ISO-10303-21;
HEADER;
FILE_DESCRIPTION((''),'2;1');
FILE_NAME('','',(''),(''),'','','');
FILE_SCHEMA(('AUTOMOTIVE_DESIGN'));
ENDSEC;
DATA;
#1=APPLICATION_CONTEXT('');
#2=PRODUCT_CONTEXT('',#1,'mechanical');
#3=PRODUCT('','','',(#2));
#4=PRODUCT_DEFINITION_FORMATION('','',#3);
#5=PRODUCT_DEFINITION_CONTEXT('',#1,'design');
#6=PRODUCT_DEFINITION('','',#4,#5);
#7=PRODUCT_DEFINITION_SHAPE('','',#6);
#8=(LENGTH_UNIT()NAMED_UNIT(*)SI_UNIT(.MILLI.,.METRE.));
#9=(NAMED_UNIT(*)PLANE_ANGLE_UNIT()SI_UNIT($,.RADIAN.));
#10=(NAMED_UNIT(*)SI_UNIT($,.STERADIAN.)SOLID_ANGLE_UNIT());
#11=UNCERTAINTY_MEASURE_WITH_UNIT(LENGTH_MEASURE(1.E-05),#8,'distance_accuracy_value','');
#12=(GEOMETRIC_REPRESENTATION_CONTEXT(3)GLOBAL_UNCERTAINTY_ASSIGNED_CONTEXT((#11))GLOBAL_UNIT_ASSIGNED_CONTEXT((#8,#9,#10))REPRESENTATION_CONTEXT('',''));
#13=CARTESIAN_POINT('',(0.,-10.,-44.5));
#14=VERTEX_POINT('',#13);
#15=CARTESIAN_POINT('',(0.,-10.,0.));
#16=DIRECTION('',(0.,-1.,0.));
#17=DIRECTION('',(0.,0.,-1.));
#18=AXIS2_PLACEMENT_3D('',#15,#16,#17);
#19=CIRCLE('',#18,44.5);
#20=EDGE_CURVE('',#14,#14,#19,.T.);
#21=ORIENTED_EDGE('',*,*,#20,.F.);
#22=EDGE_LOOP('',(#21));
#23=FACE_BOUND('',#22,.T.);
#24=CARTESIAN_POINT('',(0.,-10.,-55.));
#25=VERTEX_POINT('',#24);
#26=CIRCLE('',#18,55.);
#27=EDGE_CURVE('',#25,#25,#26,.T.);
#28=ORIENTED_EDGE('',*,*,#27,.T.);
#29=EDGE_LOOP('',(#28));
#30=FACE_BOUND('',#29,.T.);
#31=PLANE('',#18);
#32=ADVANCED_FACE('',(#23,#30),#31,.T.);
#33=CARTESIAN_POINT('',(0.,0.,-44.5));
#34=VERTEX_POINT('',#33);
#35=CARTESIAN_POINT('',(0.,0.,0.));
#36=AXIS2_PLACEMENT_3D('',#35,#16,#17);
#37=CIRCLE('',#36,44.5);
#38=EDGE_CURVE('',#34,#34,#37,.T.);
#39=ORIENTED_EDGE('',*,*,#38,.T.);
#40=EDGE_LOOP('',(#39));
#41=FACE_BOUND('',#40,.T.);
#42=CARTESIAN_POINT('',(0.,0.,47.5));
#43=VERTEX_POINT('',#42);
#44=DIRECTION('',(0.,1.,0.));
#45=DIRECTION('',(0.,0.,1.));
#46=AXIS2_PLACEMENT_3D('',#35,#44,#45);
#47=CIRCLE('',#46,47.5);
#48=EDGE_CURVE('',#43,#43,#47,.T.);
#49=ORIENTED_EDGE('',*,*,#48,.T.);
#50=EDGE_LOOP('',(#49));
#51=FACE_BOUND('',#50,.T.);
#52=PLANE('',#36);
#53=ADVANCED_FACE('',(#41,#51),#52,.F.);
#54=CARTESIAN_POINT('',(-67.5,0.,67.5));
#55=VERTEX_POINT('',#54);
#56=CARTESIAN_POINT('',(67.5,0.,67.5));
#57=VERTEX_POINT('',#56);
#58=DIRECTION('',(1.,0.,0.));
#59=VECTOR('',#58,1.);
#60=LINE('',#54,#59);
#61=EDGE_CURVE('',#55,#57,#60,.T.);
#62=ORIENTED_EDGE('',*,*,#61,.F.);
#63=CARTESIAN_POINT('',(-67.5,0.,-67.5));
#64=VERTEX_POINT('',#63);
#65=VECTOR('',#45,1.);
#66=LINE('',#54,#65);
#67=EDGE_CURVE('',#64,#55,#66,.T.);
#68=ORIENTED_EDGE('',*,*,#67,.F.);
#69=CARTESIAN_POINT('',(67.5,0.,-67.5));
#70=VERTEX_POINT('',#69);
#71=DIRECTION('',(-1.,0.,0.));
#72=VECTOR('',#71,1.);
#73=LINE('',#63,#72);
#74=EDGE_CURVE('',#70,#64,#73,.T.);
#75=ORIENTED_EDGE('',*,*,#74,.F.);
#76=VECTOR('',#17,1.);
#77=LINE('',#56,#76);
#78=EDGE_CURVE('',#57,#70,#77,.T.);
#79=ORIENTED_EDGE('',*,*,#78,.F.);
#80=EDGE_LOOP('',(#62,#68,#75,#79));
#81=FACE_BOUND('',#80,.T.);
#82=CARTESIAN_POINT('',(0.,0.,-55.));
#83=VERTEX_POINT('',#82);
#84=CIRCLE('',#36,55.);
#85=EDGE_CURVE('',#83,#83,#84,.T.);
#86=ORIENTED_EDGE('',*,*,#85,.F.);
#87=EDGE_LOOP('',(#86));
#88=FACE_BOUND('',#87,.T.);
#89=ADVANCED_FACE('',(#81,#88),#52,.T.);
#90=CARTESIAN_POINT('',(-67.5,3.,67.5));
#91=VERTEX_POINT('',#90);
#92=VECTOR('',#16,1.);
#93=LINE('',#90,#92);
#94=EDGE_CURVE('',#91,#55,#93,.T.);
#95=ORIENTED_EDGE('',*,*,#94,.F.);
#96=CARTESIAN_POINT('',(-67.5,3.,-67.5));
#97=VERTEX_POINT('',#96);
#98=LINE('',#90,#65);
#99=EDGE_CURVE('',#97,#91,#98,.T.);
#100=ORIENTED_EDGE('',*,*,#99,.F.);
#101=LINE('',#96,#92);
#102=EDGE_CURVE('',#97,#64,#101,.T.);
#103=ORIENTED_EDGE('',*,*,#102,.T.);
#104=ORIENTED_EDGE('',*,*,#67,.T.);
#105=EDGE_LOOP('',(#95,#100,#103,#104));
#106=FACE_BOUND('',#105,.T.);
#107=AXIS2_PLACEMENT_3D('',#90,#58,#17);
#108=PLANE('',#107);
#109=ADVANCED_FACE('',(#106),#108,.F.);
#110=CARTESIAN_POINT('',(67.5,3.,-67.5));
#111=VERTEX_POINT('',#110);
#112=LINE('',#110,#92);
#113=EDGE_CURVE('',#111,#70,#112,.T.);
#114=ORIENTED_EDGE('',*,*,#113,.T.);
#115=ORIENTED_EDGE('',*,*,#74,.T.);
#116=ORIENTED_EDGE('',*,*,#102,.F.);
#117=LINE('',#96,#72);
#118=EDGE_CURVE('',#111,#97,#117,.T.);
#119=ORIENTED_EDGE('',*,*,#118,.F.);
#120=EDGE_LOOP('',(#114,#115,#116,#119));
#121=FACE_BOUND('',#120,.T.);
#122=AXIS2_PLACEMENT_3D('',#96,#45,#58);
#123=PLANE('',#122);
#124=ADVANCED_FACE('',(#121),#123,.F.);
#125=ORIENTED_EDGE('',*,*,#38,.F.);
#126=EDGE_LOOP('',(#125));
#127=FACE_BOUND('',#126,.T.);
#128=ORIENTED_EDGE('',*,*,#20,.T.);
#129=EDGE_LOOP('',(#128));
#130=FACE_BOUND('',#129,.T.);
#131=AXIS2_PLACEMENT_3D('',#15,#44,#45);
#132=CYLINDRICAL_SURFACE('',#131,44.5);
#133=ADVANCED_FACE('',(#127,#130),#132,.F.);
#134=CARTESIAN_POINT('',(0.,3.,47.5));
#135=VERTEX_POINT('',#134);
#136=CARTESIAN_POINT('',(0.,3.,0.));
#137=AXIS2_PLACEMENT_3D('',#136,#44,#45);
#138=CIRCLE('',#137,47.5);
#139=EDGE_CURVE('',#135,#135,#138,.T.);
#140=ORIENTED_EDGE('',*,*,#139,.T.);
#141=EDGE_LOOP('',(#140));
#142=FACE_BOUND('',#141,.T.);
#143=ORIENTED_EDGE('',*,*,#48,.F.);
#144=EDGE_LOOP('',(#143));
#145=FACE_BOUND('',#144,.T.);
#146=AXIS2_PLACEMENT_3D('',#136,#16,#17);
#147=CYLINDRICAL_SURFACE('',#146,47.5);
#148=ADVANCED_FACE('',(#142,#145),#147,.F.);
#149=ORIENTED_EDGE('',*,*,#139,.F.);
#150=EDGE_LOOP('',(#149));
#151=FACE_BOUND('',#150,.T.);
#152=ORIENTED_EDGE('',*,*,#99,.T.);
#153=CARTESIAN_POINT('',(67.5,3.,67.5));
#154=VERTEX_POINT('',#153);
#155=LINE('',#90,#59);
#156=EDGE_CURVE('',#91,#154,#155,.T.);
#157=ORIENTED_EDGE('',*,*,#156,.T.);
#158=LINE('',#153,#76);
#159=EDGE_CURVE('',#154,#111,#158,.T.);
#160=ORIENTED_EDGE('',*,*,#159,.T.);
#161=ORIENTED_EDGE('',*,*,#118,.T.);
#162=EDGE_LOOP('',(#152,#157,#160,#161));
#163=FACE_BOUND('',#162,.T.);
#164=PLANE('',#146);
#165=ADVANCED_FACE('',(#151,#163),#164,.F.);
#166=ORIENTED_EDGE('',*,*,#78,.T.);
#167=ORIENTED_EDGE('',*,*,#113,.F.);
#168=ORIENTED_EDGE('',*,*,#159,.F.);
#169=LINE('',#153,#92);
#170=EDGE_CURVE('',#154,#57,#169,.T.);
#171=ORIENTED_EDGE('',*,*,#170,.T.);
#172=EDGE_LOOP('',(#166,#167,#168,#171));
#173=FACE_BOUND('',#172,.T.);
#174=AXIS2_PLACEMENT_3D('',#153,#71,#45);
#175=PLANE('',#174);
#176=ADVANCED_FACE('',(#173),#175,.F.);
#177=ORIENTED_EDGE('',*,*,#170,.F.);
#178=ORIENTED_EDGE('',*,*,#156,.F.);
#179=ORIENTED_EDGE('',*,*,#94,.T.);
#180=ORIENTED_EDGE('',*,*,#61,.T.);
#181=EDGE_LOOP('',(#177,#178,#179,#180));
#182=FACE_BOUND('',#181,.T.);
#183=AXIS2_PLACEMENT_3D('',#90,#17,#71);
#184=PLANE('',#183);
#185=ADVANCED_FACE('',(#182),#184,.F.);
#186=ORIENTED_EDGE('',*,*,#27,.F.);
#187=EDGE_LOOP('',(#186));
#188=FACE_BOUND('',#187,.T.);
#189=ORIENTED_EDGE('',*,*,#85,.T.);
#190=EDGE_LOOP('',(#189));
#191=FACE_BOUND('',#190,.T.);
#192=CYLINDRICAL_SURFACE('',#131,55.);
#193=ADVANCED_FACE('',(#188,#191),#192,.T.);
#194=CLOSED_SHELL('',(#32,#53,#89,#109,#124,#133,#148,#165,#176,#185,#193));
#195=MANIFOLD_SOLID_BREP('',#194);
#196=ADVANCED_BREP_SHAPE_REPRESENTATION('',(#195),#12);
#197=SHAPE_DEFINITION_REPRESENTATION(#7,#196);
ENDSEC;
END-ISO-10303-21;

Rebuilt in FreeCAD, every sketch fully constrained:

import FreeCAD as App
import Part
import Sketcher

V = App.Vector

doc = App.newDocument("Part")
body = doc.addObject("PartDesign::Body", "Body")

sketch1 = body.newObject("Sketcher::SketchObject", "Sketch")
sketch1.AttachmentSupport = (doc.getObject("XZ_Plane"), [""])
sketch1.MapMode = "FlatFace"
sketch1.addGeometry([
    Part.LineSegment(V(-68, -68, 0), V(-68, 68, 0)),
    Part.LineSegment(V(-68, 68, 0), V(68, 68, 0)),
    Part.LineSegment(V(68, 68, 0), V(68, -68, 0)),
    Part.LineSegment(V(68, -68, 0), V(-68, -68, 0)),
    Part.Circle(V(0, 0, 0), V(0, 0, 1), 48),
], False)
sketch1.addConstraint([
    Sketcher.Constraint("Coincident", 0, 2, 1, 1),
    Sketcher.Constraint("Coincident", 1, 2, 2, 1),
    Sketcher.Constraint("Coincident", 2, 2, 3, 1),
    Sketcher.Constraint("Coincident", 3, 2, 0, 1),
    Sketcher.Constraint("Vertical", 0),
    Sketcher.Constraint("Horizontal", 1),
    Sketcher.Constraint("Vertical", 2),
    Sketcher.Constraint("Horizontal", 3),
    Sketcher.Constraint("Coincident", 4, 3, -1, 1),
    Sketcher.Constraint("Symmetric", 0, 2, 2, 2, -1, 1),
    Sketcher.Constraint("Equal", 3, 0),
    Sketcher.Constraint("Diameter", 4, 95.0),
    Sketcher.Constraint("DistanceX", 1, 1, 1, 2, 135.0),
])
pad1 = body.newObject("PartDesign::Pad", "Pad")
pad1.Profile = sketch1
pad1.Length = 3
pad1.Reversed = True

sketch2 = body.newObject("Sketcher::SketchObject", "Sketch001")
sketch2.AttachmentSupport = (doc.getObject("XZ_Plane"), [""])
sketch2.MapMode = "FlatFace"
sketch2.addGeometry([
    Part.Circle(V(0, 0, 0), V(0, 0, 1), 55),
    Part.Circle(V(0, 0, 0), V(0, 0, 1), 44),
], False)
sketch2.addConstraint([
    Sketcher.Constraint("Coincident", 0, 3, -1, 1),
    Sketcher.Constraint("Coincident", 1, 3, -1, 1),
    Sketcher.Constraint("Diameter", 0, 110.0),
    Sketcher.Constraint("Diameter", 1, 89.0),
])
pad2 = body.newObject("PartDesign::Pad", "Pad001")
pad2.Profile = sketch2
pad2.Length = 10

doc.recompute()
